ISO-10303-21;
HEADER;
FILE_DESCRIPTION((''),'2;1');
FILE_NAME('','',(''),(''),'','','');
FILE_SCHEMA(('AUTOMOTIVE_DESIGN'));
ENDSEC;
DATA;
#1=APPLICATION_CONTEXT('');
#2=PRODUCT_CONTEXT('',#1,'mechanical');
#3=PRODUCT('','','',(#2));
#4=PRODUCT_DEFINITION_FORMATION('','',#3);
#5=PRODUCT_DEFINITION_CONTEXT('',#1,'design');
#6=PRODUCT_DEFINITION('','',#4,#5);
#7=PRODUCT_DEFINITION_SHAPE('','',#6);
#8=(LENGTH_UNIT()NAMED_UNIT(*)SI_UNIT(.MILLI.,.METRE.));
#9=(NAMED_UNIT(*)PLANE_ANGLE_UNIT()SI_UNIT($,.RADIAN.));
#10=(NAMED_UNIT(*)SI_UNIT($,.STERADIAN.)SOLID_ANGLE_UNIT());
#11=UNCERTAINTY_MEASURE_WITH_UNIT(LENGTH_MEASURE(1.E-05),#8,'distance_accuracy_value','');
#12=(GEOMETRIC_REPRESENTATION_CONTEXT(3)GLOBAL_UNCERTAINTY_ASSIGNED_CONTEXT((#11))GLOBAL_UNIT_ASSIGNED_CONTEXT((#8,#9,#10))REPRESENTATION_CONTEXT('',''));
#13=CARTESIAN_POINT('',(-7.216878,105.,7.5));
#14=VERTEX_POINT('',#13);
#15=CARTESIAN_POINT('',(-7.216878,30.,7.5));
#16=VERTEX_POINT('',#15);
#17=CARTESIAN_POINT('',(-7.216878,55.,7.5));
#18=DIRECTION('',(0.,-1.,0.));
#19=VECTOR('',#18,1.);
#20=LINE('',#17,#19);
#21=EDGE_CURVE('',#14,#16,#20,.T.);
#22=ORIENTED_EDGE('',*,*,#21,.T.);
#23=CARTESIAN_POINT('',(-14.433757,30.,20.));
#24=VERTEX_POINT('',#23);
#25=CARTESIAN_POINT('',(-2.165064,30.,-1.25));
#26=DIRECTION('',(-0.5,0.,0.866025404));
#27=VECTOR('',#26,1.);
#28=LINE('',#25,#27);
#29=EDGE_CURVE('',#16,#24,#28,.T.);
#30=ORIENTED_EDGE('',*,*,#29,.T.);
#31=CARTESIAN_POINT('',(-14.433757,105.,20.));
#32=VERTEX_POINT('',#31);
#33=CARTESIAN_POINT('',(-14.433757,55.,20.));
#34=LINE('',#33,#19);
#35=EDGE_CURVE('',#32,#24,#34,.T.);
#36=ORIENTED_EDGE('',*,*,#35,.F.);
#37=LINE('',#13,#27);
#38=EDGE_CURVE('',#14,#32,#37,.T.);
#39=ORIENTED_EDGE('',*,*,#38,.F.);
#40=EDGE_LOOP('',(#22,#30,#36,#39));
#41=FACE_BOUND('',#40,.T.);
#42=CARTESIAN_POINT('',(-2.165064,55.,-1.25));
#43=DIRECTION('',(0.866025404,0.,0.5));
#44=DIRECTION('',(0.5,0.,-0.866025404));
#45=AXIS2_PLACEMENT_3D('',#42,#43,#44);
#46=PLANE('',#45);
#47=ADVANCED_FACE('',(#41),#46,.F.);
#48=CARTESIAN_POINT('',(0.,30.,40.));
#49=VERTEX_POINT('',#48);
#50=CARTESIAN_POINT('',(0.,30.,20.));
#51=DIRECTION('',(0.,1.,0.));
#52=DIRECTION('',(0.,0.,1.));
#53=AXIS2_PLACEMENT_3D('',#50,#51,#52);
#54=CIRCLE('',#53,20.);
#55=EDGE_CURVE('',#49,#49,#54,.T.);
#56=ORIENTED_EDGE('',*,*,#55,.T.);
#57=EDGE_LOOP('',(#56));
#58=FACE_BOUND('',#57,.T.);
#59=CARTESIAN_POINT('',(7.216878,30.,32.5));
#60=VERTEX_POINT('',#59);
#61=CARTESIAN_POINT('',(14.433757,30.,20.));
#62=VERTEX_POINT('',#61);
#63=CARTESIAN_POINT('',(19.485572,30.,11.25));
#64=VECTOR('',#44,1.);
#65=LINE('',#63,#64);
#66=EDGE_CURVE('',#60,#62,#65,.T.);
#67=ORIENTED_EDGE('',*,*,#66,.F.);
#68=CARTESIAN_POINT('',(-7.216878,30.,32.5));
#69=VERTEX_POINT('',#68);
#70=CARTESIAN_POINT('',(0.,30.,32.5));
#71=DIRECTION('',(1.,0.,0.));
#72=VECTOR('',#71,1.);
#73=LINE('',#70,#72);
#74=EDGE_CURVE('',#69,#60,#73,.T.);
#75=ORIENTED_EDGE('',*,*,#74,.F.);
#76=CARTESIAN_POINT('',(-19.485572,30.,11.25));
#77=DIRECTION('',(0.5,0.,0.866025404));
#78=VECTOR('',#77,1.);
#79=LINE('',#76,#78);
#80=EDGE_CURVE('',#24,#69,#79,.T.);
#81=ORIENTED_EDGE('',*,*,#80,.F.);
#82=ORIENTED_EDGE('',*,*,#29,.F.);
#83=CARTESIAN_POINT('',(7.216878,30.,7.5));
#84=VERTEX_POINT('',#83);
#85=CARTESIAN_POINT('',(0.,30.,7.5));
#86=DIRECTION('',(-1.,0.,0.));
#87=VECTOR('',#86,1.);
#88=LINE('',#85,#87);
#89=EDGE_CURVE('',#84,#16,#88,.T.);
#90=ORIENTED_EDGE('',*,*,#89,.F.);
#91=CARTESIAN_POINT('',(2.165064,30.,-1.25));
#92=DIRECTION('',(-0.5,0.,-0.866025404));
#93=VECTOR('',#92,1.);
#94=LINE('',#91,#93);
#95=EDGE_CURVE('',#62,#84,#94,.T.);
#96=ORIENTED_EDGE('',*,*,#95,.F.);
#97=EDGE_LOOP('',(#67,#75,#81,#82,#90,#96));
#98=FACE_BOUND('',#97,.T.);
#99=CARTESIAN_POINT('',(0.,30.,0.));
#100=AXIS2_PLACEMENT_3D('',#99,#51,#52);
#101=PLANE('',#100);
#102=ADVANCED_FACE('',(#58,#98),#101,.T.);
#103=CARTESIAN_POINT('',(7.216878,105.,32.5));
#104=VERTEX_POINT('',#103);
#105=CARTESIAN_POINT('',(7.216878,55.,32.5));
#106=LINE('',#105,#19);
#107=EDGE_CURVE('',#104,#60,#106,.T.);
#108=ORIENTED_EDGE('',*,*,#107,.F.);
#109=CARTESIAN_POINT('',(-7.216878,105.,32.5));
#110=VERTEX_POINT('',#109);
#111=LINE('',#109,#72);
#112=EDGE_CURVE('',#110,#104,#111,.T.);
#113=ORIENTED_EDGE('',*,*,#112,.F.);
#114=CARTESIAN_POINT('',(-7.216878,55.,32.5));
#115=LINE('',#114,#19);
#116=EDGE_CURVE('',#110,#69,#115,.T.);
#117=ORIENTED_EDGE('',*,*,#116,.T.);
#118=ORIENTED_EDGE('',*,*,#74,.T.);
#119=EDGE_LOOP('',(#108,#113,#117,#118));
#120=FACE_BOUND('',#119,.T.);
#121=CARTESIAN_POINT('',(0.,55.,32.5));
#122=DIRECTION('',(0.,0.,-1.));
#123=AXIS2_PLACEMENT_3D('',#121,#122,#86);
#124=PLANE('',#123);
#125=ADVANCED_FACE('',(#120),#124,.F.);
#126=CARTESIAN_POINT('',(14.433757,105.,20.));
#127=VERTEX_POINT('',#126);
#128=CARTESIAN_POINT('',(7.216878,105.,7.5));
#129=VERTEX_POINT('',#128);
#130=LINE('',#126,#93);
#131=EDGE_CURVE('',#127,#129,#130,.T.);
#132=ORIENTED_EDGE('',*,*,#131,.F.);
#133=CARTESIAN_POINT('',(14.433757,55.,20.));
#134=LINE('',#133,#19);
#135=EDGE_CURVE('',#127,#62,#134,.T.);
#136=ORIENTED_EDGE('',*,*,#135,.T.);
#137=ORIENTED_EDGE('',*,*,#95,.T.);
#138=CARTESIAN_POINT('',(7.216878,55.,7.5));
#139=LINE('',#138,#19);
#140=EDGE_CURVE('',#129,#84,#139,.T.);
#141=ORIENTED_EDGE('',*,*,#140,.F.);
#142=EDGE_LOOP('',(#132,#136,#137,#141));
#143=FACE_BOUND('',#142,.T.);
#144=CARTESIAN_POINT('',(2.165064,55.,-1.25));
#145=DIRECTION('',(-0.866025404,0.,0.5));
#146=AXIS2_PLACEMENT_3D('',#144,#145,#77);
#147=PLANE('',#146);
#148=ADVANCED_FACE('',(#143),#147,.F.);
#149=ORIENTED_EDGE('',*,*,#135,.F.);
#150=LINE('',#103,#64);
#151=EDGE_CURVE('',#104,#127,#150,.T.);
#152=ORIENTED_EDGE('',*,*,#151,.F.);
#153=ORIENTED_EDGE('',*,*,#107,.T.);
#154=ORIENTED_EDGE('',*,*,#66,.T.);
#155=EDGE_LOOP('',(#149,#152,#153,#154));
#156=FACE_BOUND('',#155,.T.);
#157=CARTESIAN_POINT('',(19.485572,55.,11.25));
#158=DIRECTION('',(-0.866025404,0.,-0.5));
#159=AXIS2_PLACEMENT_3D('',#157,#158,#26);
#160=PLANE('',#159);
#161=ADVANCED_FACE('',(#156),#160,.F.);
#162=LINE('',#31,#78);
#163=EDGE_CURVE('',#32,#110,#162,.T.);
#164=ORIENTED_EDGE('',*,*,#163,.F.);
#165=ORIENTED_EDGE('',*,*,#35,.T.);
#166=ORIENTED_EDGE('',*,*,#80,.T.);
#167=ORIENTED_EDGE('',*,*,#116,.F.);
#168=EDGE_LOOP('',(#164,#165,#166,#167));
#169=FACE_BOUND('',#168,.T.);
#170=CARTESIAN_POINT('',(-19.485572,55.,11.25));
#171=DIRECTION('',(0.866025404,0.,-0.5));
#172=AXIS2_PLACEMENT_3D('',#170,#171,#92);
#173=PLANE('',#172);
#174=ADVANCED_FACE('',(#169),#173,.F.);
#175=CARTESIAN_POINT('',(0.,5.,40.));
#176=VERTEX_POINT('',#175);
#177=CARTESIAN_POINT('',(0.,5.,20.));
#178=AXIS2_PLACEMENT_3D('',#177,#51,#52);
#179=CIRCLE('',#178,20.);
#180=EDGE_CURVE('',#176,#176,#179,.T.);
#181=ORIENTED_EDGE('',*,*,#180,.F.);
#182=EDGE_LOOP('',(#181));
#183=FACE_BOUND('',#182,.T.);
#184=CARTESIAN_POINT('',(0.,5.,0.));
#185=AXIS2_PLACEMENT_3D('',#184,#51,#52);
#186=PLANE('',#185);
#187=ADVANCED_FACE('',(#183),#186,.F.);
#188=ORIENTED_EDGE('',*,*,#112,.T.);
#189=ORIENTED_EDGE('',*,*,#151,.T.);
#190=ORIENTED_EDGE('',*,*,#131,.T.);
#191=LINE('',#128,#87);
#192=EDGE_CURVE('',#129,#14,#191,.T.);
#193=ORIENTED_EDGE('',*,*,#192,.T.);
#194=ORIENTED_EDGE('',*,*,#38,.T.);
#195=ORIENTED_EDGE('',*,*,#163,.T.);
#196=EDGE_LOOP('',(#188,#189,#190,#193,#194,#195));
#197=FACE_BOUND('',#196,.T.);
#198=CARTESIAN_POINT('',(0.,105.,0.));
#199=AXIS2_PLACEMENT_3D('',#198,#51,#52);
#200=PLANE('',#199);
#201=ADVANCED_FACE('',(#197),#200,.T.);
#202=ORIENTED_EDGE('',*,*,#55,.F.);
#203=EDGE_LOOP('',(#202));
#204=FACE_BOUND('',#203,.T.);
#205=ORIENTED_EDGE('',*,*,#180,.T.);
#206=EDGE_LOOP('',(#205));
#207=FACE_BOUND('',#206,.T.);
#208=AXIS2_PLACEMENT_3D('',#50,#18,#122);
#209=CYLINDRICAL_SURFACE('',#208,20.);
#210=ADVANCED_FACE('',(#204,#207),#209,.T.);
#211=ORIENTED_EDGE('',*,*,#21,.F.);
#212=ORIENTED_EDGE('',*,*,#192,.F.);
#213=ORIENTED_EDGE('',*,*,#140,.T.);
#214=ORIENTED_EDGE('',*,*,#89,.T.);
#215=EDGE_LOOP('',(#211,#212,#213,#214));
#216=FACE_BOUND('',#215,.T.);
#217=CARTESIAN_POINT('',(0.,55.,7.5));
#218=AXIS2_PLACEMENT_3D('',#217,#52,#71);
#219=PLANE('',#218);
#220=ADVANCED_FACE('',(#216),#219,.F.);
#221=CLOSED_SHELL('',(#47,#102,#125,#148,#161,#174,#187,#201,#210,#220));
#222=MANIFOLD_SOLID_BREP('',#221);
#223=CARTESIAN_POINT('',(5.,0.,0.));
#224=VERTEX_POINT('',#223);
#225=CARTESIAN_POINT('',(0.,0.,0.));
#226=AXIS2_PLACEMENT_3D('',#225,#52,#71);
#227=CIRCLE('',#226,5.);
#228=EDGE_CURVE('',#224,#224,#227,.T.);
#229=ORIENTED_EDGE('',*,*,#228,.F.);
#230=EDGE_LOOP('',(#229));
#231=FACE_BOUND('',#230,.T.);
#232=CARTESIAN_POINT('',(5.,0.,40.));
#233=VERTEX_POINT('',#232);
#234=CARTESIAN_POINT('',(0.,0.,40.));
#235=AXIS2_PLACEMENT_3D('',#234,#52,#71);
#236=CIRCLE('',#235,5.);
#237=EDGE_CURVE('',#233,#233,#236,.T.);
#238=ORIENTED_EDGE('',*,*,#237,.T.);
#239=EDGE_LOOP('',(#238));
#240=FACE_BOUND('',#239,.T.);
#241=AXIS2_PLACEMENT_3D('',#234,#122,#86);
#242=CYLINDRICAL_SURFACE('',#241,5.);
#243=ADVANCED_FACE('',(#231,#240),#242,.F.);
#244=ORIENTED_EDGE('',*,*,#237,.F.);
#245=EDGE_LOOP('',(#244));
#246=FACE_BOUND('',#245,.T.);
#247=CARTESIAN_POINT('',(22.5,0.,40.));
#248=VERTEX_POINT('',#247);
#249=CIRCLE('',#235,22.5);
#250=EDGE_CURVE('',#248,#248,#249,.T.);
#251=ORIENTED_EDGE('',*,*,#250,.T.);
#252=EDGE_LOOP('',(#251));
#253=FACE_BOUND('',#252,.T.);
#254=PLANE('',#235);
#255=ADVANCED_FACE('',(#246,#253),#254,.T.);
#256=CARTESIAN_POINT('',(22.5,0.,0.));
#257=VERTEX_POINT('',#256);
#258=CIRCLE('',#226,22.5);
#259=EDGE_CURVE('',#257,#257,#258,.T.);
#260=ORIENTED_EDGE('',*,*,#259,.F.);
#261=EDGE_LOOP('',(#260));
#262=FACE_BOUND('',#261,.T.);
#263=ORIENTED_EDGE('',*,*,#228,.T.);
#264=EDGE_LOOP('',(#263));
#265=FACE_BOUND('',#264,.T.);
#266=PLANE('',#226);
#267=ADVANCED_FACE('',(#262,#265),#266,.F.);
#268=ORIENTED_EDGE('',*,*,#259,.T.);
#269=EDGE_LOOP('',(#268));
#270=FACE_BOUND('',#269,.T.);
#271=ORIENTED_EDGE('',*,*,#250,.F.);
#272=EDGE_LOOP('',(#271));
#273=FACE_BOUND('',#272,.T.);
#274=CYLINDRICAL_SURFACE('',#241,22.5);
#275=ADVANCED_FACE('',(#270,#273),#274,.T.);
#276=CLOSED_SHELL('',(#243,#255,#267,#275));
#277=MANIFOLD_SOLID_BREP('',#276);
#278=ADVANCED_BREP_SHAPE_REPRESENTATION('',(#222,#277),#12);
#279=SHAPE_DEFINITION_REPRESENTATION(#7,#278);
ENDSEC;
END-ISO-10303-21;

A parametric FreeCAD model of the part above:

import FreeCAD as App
import Part
import Sketcher
Q = App.Units.Quantity

doc = App.newDocument("Part")
body = doc.addObject("PartDesign::Body", "Body")

# Sketch on XY plane
sketch1 = doc.addObject("Sketcher::SketchObject", "Sketch")
body.addObject(sketch1)
sketch1.AttachmentSupport = (doc.XY_Plane, [""])
sketch1.MapMode = "FlatFace"
sketch1.addGeometry([
    Part.Circle(App.Vector(0, 0, 0), App.Vector(0, 0, 1), 22),
    Part.Circle(App.Vector(0, 0, 0), App.Vector(0, 0, 1), 5),
], False)
sketch1.addConstraint([
    Sketcher.Constraint("Coincident", 0, 3, -1, 1),
    Sketcher.Constraint("Coincident", 1, 3, -1, 1),
    Sketcher.Constraint("Diameter", 0, 45.0),
    Sketcher.Constraint("Diameter", 1, 10.0),
])
pad1 = doc.addObject("PartDesign::Pad", "Pad")
body.addObject(pad1)
pad1.Profile = sketch1
pad1.Length = 40
body2 = doc.addObject("PartDesign::Body", "Body001")

# Sketch on XZ plane
sketch2 = doc.addObject("Sketcher::SketchObject", "Sketch001")
body2.addObject(sketch2)
sketch2.AttachmentSupport = (doc.getObject("XZ_Plane001"), [""])
sketch2.MapMode = "FlatFace"
sketch2.AttachmentOffset = App.Placement(App.Vector(0, 0, -5), App.Rotation())
sketch2.addGeometry(Part.Circle(App.Vector(0, 20, 0), App.Vector(0, 0, 1), 20), False)
sketch2.addConstraint([
    Sketcher.Constraint("PointOnObject", 0, 3, -2),
    Sketcher.Constraint("Diameter", 0, 40.0),
    Sketcher.Constraint("DistanceY", -1, 1, 0, 3, 20.0),
])
pad2 = doc.addObject("PartDesign::Pad", "Pad001")
body2.addObject(pad2)
pad2.Profile = sketch2
pad2.Length = 25
pad2.Reversed = True

# Sketch on XZ plane
sketch3 = doc.addObject("Sketcher::SketchObject", "Sketch002")
body2.addObject(sketch3)
sketch3.AttachmentSupport = (doc.getObject("XZ_Plane001"), [""])
sketch3.MapMode = "FlatFace"
sketch3.AttachmentOffset = App.Placement(App.Vector(0, 0, -30), App.Rotation())
sketch3.addGeometry([
    Part.LineSegment(App.Vector(-7, 8, 0), App.Vector(-14, 20, 0)),  # 0
    Part.LineSegment(App.Vector(-14, 20, 0), App.Vector(-7, 32, 0)),  # 1
    Part.LineSegment(App.Vector(-7, 32, 0), App.Vector(7, 32, 0)),  # 2
    Part.LineSegment(App.Vector(7, 32, 0), App.Vector(14, 20, 0)),  # 3
    Part.LineSegment(App.Vector(14, 20, 0), App.Vector(7, 8, 0)),  # 4
    Part.LineSegment(App.Vector(7, 8, 0), App.Vector(-7, 8, 0)),  # 5
], False)
sketch3.addConstraint([
    Sketcher.Constraint("Coincident", 0, 2, 1, 1),
    Sketcher.Constraint("Coincident", 1, 2, 2, 1),
    Sketcher.Constraint("Coincident", 2, 2, 3, 1),
    Sketcher.Constraint("Coincident", 3, 2, 4, 1),
    Sketcher.Constraint("Coincident", 4, 2, 5, 1),
    Sketcher.Constraint("Coincident", 5, 2, 0, 1),
    Sketcher.Constraint("Horizontal", 2),
    Sketcher.Constraint("Horizontal", 5),
    Sketcher.Constraint("Symmetric", 0, 2, 3, 2, -2),
    Sketcher.Constraint("Parallel", 0, 3),
    Sketcher.Constraint("Parallel", 1, 4),
    Sketcher.Constraint("Vertical", 2, 2, 4, 2),
    Sketcher.Constraint("Vertical", 1, 2, 5, 2),
    Sketcher.Constraint("Angle", 0, Q("120 deg")),
    Sketcher.Constraint("DistanceY", -1, 1, 0, 2, 20.0),
    Sketcher.Constraint("DistanceY", 4, 2, 2, 2, 25.0),
    Sketcher.Constraint("DistanceX", 2, 1, 2, 2, 14.433757),
])
pad3 = doc.addObject("PartDesign::Pad", "Pad002")
body2.addObject(pad3)
pad3.Profile = sketch3
pad3.Length = 25
pad3.Reversed = True

# Sketch on XZ plane
sketch4 = doc.addObject("Sketcher::SketchObject", "Sketch003")
body2.addObject(sketch4)
sketch4.AttachmentSupport = (doc.getObject("XZ_Plane001"), [""])
sketch4.MapMode = "FlatFace"
sketch4.AttachmentOffset = App.Placement(App.Vector(0, 0, -55), App.Rotation())
sketch4.addGeometry([
    Part.LineSegment(App.Vector(7, 32, 0), App.Vector(14, 20, 0)),  # 0
    Part.LineSegment(App.Vector(14, 20, 0), App.Vector(7, 8, 0)),  # 1
    Part.LineSegment(App.Vector(7, 8, 0), App.Vector(-7, 8, 0)),  # 2
    Part.LineSegment(App.Vector(-7, 8, 0), App.Vector(-14, 20, 0)),  # 3
    Part.LineSegment(App.Vector(-14, 20, 0), App.Vector(-7, 32, 0)),  # 4
    Part.LineSegment(App.Vector(-7, 32, 0), App.Vector(7, 32, 0)),  # 5
], False)
sketch4.addConstraint([
    Sketcher.Constraint("Coincident", 0, 2, 1, 1),
    Sketcher.Constraint("Coincident", 1, 2, 2, 1),
    Sketcher.Constraint("Coincident", 2, 2, 3, 1),
    Sketcher.Constraint("Coincident", 3, 2, 4, 1),
    Sketcher.Constraint("Coincident", 4, 2, 5, 1),
    Sketcher.Constraint("Coincident", 5, 2, 0, 1),
    Sketcher.Constraint("Horizontal", 2),
    Sketcher.Constraint("Horizontal", 5),
    Sketcher.Constraint("Symmetric", 0, 2, 3, 2, -2),
    Sketcher.Constraint("Parallel", 0, 3),
    Sketcher.Constraint("Parallel", 1, 4),
    Sketcher.Constraint("Vertical", 2, 2, 4, 2),
    Sketcher.Constraint("Vertical", 1, 2, 5, 2),
    Sketcher.Constraint("Angle", 0, Q("-60 deg")),
    Sketcher.Constraint("DistanceY", -1, 1, 0, 2, 20.0),
    Sketcher.Constraint("DistanceY", 2, 2, 4, 2, 25.0),
    Sketcher.Constraint("DistanceX", 2, 2, 2, 1, 14.433757),
])
pad4 = doc.addObject("PartDesign::Pad", "Pad003")
body2.addObject(pad4)
pad4.Profile = sketch4
pad4.Length = 50
pad4.Reversed = True

doc.recompute()
